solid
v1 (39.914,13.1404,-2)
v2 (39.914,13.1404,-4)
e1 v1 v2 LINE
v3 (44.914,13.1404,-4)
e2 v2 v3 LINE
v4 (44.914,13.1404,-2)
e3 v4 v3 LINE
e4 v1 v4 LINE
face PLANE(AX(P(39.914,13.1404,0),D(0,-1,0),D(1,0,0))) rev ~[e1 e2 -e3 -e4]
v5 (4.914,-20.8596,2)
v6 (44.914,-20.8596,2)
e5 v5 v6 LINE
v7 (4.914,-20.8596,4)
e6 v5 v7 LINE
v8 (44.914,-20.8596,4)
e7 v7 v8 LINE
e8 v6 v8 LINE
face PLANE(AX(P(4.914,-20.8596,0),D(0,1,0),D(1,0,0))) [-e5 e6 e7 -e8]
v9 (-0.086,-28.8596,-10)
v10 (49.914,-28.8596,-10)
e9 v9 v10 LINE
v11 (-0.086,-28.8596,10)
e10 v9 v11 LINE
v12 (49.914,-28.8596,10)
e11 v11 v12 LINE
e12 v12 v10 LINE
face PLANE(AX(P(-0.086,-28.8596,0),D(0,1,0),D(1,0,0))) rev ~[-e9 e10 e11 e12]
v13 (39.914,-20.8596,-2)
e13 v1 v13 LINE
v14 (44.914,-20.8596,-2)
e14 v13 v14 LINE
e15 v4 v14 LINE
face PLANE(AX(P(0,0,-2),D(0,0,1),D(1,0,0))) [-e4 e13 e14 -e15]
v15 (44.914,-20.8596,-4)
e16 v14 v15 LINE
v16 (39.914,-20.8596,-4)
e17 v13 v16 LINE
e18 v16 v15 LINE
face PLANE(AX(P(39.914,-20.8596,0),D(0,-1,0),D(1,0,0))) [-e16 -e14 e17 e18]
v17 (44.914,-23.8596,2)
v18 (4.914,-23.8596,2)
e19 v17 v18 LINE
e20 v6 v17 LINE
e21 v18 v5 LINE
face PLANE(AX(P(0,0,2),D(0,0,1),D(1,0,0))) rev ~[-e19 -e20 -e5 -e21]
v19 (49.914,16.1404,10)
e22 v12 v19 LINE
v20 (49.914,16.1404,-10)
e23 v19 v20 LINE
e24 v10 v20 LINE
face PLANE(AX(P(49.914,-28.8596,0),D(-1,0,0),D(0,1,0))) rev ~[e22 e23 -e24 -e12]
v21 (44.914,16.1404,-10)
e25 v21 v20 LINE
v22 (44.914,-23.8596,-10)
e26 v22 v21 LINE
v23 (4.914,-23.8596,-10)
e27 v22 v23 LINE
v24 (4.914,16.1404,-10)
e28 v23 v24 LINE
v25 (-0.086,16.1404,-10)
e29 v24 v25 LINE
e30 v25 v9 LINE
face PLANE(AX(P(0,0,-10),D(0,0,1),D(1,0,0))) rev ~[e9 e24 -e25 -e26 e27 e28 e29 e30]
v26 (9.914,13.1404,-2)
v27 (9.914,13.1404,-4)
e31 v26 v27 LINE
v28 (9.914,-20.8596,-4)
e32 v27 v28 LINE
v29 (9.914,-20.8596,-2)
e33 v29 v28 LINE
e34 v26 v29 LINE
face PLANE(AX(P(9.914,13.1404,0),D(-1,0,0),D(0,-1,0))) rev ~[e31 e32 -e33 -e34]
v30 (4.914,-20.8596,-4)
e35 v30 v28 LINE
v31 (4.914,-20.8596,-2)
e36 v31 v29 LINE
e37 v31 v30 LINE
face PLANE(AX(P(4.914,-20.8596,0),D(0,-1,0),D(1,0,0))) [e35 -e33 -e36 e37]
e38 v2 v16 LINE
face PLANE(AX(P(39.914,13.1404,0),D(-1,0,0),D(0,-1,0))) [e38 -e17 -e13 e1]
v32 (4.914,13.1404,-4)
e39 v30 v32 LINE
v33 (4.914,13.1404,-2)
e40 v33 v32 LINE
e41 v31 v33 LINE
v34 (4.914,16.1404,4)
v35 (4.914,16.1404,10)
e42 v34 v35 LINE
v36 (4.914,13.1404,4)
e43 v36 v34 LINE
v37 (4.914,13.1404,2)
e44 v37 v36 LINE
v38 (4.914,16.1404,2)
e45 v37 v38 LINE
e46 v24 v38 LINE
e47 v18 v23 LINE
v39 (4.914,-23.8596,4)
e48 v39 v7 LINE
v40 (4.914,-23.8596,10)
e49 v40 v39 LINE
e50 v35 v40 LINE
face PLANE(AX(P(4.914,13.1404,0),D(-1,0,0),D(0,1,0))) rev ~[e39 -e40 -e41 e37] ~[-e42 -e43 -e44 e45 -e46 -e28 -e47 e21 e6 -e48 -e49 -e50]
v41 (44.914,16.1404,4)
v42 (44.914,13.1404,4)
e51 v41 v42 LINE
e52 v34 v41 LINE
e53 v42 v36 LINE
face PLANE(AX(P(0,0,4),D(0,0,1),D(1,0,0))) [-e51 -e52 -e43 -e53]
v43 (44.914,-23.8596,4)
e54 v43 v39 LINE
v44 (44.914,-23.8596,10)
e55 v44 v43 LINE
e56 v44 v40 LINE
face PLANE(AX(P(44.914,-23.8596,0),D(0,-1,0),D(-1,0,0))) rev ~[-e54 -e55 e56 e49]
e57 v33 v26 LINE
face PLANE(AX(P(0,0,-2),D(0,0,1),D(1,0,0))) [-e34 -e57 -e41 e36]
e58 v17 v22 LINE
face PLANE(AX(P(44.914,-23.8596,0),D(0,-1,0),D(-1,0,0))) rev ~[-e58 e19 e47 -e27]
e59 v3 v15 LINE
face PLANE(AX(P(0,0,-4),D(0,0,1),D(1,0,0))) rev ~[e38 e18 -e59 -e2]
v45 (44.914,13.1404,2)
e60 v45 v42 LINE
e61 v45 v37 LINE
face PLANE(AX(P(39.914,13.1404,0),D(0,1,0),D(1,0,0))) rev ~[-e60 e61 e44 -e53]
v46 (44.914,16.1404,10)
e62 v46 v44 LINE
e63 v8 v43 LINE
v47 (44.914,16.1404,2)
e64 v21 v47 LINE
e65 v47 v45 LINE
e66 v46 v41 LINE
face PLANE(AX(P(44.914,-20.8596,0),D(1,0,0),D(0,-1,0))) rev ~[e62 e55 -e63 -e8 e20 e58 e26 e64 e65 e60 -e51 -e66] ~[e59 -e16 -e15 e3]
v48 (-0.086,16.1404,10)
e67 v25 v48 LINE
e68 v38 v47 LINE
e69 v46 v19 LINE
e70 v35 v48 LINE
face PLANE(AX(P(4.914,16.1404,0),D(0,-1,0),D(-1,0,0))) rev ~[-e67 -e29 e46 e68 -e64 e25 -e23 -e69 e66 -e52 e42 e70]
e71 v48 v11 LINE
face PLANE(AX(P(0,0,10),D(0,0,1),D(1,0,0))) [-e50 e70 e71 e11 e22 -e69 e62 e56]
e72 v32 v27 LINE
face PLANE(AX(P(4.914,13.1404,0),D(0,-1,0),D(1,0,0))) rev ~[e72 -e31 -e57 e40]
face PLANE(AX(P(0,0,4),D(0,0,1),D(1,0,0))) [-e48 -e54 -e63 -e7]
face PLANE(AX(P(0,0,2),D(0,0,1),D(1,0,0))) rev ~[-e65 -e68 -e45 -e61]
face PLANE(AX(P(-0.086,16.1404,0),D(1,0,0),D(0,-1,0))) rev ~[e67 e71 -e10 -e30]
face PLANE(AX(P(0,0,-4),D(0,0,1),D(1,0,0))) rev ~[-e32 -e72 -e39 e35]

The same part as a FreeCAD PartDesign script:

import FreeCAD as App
import Part
import Sketcher

V = App.Vector
Q = App.Units.Quantity


def add_polygon(sketch, points):
    """Adds a closed chain of lines whose ends are joined by coincident constraints."""
    first, n = sketch.GeometryCount, len(points)
    for a, b in zip(points, points[1:] + points[:1]):
        sketch.addGeometry(Part.LineSegment(App.Vector(*a, 0), App.Vector(*b, 0)), False)
    for i in range(n):
        sketch.addConstraint(Sketcher.Constraint("Coincident", first + i, 2, first + (i + 1) % n, 1))

doc = App.newDocument("Part")
body = doc.addObject("PartDesign::Body", "Body")

# Sketch on XY plane
sketch1 = body.newObject("Sketcher::SketchObject", "Sketch")
sketch1.AttachmentSupport = (doc.getObject("XY_Plane"), [""])
sketch1.MapMode = "FlatFace"
add_polygon(sketch1, [(5, -24), (5, 16), (0, 16), (0, -29), (50, -29), (50, 16), (45, 16), (45, -24)])  # lines 0-7
sketch1.addConstraint([
    Sketcher.Constraint("Vertical", 0),
    Sketcher.Constraint("Horizontal", 1),
    Sketcher.Constraint("Vertical", 2),
    Sketcher.Constraint("Horizontal", 3),
    Sketcher.Constraint("Vertical", 4),
    Sketcher.Constraint("Horizontal", 5),
    Sketcher.Constraint("Vertical", 6),
    Sketcher.Constraint("Horizontal", 7),
    Sketcher.Constraint("Horizontal", 1, 2, 4, 2),
    Sketcher.Constraint("Equal", 1, 5),
    Sketcher.Constraint("Equal", 7, 0),
    Sketcher.Constraint("DistanceX", 1, 2, 1, 1, Q("5 mm")),
    Sketcher.Constraint("DistanceX", 7, 2, 7, 1, Q("40 mm")),
    Sketcher.Constraint("DistanceY", 3, 2, 6, 2, Q("5 mm")),
    Sketcher.Constraint("DistanceX", -1, 1, 0, 2, Q("4.914 mm")),
    Sketcher.Constraint("DistanceY", -1, 1, 0, 2, Q("16.1404 mm")),
])
pad1 = body.newObject("PartDesign::Pad", "Pad")
pad1.Profile = sketch1
pad1.Length = 20
pad1.Midplane = True

# Sketch on XY plane
sketch2 = body.newObject("Sketcher::SketchObject", "Sketch001")
sketch2.AttachmentSupport = (doc.getObject("XY_Plane"), [""])
sketch2.MapMode = "FlatFace"
add_polygon(sketch2, [(44.9, 16.1), (4.9, 16.1), (4.9, 13.1), (44.9, 13.1)])  # lines 0-3
add_polygon(sketch2, [(44.9, -20.9), (4.9, -20.9), (4.9, -23.9), (44.9, -23.9)])  # lines 4-7
sketch2.addConstraint([
    Sketcher.Constraint("Horizontal", 0),
    Sketcher.Constraint("Vertical", 1),
    Sketcher.Constraint("Horizontal", 2),
    Sketcher.Constraint("Vertical", 3),
    Sketcher.Constraint("Horizontal", 4),
    Sketcher.Constraint("Vertical", 5),
    Sketcher.Constraint("Horizontal", 6),
    Sketcher.Constraint("Vertical", 7),
    Sketcher.Constraint("Vertical", 1, 2, 4, 2),
    Sketcher.Constraint("Vertical", 3, 2, 6, 2),
    Sketcher.Constraint("Equal", 3, 5),
    Sketcher.Constraint("DistanceX", 0, 2, 0, 1, Q("40 mm")),
    Sketcher.Constraint("DistanceY", 1, 2, 1, 1, Q("3 mm")),
    Sketcher.Constraint("DistanceY", 5, 2, 0, 2, Q("40 mm")),
    Sketcher.Constraint("DistanceX", -1, 1, 0, 2, Q("4.914 mm")),
    Sketcher.Constraint("DistanceY", -1, 1, 0, 2, Q("16.1404 mm")),
])
pad2 = body.newObject("PartDesign::Pad", "Pad001")
pad2.Profile = sketch2
pad2.Length = 4

# Sketch on XY plane
sketch3 = body.newObject("Sketcher::SketchObject", "Sketch002")
sketch3.AttachmentSupport = (doc.getObject("XY_Plane"), [""])
sketch3.MapMode = "FlatFace"
add_polygon(sketch3, [(44.9, 16.1), (4.9, 16.1), (4.9, 13.1), (44.9, 13.1)])  # lines 0-3
add_polygon(sketch3, [(44.9, -20.9), (4.9, -20.9), (4.9, -23.9), (44.9, -23.9)])  # lines 4-7
sketch3.addConstraint([
    Sketcher.Constraint("Horizontal", 0),
    Sketcher.Constraint("Vertical", 1),
    Sketcher.Constraint("Horizontal", 2),
    Sketcher.Constraint("Vertical", 3),
    Sketcher.Constraint("Horizontal", 4),
    Sketcher.Constraint("Vertical", 5),
    Sketcher.Constraint("Horizontal", 6),
    Sketcher.Constraint("Vertical", 7),
    Sketcher.Constraint("Vertical", 1, 2, 4, 2),
    Sketcher.Constraint("Vertical", 3, 2, 6, 2),
    Sketcher.Constraint("Equal", 3, 5),
    Sketcher.Constraint("DistanceX", 0, 2, 0, 1, Q("40 mm")),
    Sketcher.Constraint("DistanceY", 1, 2, 1, 1, Q("3 mm")),
    Sketcher.Constraint("DistanceY", 5, 2, 0, 2, Q("40 mm")),
    Sketcher.Constraint("DistanceX", -1, 1, 0, 2, Q("4.914 mm")),
    Sketcher.Constraint("DistanceY", -1, 1, 0, 2, Q("16.1404 mm")),
])
pocket1 = body.newObject("PartDesign::Pocket", "Pocket")
pocket1.Profile = sketch3
pocket1.Length = 2
pocket1.Reversed = True

# Sketch on XY plane
sketch4 = body.newObject("Sketcher::SketchObject", "Sketch003")
sketch4.AttachmentSupport = (doc.getObject("XY_Plane"), [""])
sketch4.MapMode = "FlatFace"
add_polygon(sketch4, [(10, 13), (5, 13), (5, -21), (10, -21)])  # lines 0-3
add_polygon(sketch4, [(45, -21), (45, 13), (40, 13), (40, -21)])  # lines 4-7
sketch4.addConstraint([
    Sketcher.Constraint("Horizontal", 0),
    Sketcher.Constraint("Vertical", 1),
    Sketcher.Constraint("Horizontal", 2),
    Sketcher.Constraint("Vertical", 3),
    Sketcher.Constraint("Vertical", 4),
    Sketcher.Constraint("Horizontal", 5),
    Sketcher.Constraint("Vertical", 6),
    Sketcher.Constraint("Horizontal", 7),
    Sketcher.Constraint("Horizontal", 3, 2, 4, 2),
    Sketcher.Constraint("Horizontal", 2, 2, 6, 2),
    Sketcher.Constraint("Equal", 2, 5),
    Sketcher.Constraint("DistanceX", 0, 2, 0, 1, Q("5 mm")),
    Sketcher.Constraint("DistanceX", 0, 2, 4, 2, Q("40 mm")),
    Sketcher.Constraint("DistanceY", 1, 2, 1, 1, Q("34 mm")),
    Sketcher.Constraint("DistanceX", -1, 1, 0, 2, Q("4.914 mm")),
    Sketcher.Constraint("DistanceY", -1, 1, 0, 2, Q("13.1404 mm")),
])
pad3 = body.newObject("PartDesign::Pad", "Pad002")
pad3.Profile = sketch4
pad3.Length = 4
pad3.Reversed = True

# Sketch on XY plane
sketch5 = body.newObject("Sketcher::SketchObject", "Sketch004")
sketch5.AttachmentSupport = (doc.getObject("XY_Plane"), [""])
sketch5.MapMode = "FlatFace"
add_polygon(sketch5, [(10, 13), (5, 13), (5, -21), (10, -21)])  # lines 0-3
add_polygon(sketch5, [(45, -21), (45, 13), (40, 13), (40, -21)])  # lines 4-7
sketch5.addConstraint([
    Sketcher.Constraint("Horizontal", 0),
    Sketcher.Constraint("Vertical", 1),
    Sketcher.Constraint("Horizontal", 2),
    Sketcher.Constraint("Vertical", 3),
    Sketcher.Constraint("Vertical", 4),
    Sketcher.Constraint("Horizontal", 5),
    Sketcher.Constraint("Vertical", 6),
    Sketcher.Constraint("Horizontal", 7),
    Sketcher.Constraint("Horizontal", 3, 2, 4, 2),
    Sketcher.Constraint("Horizontal", 2, 2, 6, 2),
    Sketcher.Constraint("Equal", 2, 5),
    Sketcher.Constraint("DistanceX", 0, 2, 0, 1, Q("5 mm")),
    Sketcher.Constraint("DistanceX", 0, 2, 4, 2, Q("40 mm")),
    Sketcher.Constraint("DistanceY", 1, 2, 1, 1, Q("34 mm")),
    Sketcher.Constraint("DistanceX", -1, 1, 0, 2, Q("4.914 mm")),
    Sketcher.Constraint("DistanceY", -1, 1, 0, 2, Q("13.1404 mm")),
])
pocket2 = body.newObject("PartDesign::Pocket", "Pocket001")
pocket2.Profile = sketch5
pocket2.Length = 2

doc.recompute()
